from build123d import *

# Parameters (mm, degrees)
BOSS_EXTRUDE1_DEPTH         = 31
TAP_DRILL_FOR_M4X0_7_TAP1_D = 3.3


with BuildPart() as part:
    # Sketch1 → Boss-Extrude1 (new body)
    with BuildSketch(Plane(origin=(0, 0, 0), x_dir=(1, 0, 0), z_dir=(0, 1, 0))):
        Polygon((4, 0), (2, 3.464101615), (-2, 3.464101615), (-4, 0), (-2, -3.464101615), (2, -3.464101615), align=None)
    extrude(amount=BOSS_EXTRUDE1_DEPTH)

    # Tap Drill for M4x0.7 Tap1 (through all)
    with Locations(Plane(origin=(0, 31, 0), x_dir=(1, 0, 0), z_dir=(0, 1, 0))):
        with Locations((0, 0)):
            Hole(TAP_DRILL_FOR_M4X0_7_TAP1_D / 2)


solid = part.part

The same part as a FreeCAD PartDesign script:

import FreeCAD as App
import Part
import Sketcher
Q = App.Units.Quantity

doc = App.newDocument("Part")
params = doc.addObject("Spreadsheet::Sheet", "Params")
for row, (alias, value) in enumerate([
    ("sketch1_width", "4 mm"),
    ("sketch1_length", "4 mm"),
    ("pad1_length", "31 mm"),
    ("sketch2_diameter", "3.3 mm"),
    ("hole_diameter", "3.3 mm"),
], start=1):
    params.set(f"A{row}", alias)
    params.set(f"B{row}", "=" + value)
    params.setAlias(f"B{row}", alias)

body = doc.addObject("PartDesign::Body", "Body")

# Sketch on XZ plane
sketch1 = body.newObject("Sketcher::SketchObject", "Sketch")
sketch1.AttachmentSupport = (doc.getObject("XZ_Plane"), [""])
sketch1.MapMode = "FlatFace"
sketch1.addGeometry(Part.LineSegment(App.Vector(4, 0, 0), App.Vector(2, -3.5, 0)), False)
sketch1.addGeometry(Part.LineSegment(App.Vector(2, -3.5, 0), App.Vector(-2, -3.5, 0)), False)
sketch1.addGeometry(Part.LineSegment(App.Vector(-2, -3.5, 0), App.Vector(-4, 0, 0)), False)
sketch1.addGeometry(Part.LineSegment(App.Vector(-4, 0, 0), App.Vector(-2, 3.5, 0)), False)
sketch1.addGeometry(Part.LineSegment(App.Vector(-2, 3.5, 0), App.Vector(2, 3.5, 0)), False)
sketch1.addGeometry(Part.LineSegment(App.Vector(2, 3.5, 0), App.Vector(4, 0, 0)), False)
sketch1.addConstraint(Sketcher.Constraint("Coincident", 0, 2, 1, 1))
sketch1.addConstraint(Sketcher.Constraint("Coincident", 1, 2, 2, 1))
sketch1.addConstraint(Sketcher.Constraint("Coincident", 2, 2, 3, 1))
sketch1.addConstraint(Sketcher.Constraint("Coincident", 3, 2, 4, 1))
sketch1.addConstraint(Sketcher.Constraint("Coincident", 4, 2, 5, 1))
sketch1.addConstraint(Sketcher.Constraint("Coincident", 5, 2, 0, 1))
sketch1.addConstraint(Sketcher.Constraint("Horizontal", 1))
sketch1.addConstraint(Sketcher.Constraint("Horizontal", 4))
sketch1.addConstraint(Sketcher.Constraint("Symmetric", 0, 2, 3, 2, -1, 1))
sketch1.addConstraint(Sketcher.Constraint("Symmetric", 2, 2, 5, 2, -1, 1))
sketch1.addConstraint(Sketcher.Constraint("PointOnObject", 2, 2, -1))
sketch1.addConstraint(Sketcher.Constraint("Parallel", 2, 5))
sketch1.addConstraint(Sketcher.Constraint("Vertical", 1, 2, 3, 2))
sketch1.addConstraint(Sketcher.Constraint("DistanceX", 1, 2, 1, 1, Q("4 mm")))
sketch1.addConstraint(Sketcher.Constraint("Angle", 0, Q("-120 deg")))
sketch1.addConstraint(Sketcher.Constraint("Distance", 0, Q("4 mm")))
sketch1.setExpression("Constraints[13]", "Params.sketch1_width")
sketch1.setExpression("Constraints[15]", "Params.sketch1_length")
pad1 = body.newObject("PartDesign::Pad", "Pad")
pad1.Profile = sketch1
pad1.setExpression("Length", "Params.pad1_length")
pad1.Reversed = True

# Sketch on XZ plane
sketch2 = body.newObject("Sketcher::SketchObject", "Sketch001")
sketch2.AttachmentSupport = (doc.getObject("XZ_Plane"), [""])
sketch2.MapMode = "FlatFace"
sketch2.AttachmentOffset = App.Placement(App.Vector(0, 0, -31), App.Rotation())
sketch2.addGeometry(Part.Circle(App.Vector(0, 0, 0), App.Vector(0, 0, 1), 1.6), False)
sketch2.addConstraint(Sketcher.Constraint("Coincident", 0, 3, -1, 1))
sketch2.addConstraint(Sketcher.Constraint("Diameter", 0, Q("3.3 mm")))
sketch2.setExpression("Constraints[1]", "Params.sketch2_diameter")
doc.recompute()
hole = body.newObject("PartDesign::Hole", "Hole")
hole.Profile = sketch2
hole.ThreadType = "None"
hole.setExpression("Diameter", "Params.hole_diameter")
hole.DepthType = "ThroughAll"
hole.Reversed = True

doc.recompute()
